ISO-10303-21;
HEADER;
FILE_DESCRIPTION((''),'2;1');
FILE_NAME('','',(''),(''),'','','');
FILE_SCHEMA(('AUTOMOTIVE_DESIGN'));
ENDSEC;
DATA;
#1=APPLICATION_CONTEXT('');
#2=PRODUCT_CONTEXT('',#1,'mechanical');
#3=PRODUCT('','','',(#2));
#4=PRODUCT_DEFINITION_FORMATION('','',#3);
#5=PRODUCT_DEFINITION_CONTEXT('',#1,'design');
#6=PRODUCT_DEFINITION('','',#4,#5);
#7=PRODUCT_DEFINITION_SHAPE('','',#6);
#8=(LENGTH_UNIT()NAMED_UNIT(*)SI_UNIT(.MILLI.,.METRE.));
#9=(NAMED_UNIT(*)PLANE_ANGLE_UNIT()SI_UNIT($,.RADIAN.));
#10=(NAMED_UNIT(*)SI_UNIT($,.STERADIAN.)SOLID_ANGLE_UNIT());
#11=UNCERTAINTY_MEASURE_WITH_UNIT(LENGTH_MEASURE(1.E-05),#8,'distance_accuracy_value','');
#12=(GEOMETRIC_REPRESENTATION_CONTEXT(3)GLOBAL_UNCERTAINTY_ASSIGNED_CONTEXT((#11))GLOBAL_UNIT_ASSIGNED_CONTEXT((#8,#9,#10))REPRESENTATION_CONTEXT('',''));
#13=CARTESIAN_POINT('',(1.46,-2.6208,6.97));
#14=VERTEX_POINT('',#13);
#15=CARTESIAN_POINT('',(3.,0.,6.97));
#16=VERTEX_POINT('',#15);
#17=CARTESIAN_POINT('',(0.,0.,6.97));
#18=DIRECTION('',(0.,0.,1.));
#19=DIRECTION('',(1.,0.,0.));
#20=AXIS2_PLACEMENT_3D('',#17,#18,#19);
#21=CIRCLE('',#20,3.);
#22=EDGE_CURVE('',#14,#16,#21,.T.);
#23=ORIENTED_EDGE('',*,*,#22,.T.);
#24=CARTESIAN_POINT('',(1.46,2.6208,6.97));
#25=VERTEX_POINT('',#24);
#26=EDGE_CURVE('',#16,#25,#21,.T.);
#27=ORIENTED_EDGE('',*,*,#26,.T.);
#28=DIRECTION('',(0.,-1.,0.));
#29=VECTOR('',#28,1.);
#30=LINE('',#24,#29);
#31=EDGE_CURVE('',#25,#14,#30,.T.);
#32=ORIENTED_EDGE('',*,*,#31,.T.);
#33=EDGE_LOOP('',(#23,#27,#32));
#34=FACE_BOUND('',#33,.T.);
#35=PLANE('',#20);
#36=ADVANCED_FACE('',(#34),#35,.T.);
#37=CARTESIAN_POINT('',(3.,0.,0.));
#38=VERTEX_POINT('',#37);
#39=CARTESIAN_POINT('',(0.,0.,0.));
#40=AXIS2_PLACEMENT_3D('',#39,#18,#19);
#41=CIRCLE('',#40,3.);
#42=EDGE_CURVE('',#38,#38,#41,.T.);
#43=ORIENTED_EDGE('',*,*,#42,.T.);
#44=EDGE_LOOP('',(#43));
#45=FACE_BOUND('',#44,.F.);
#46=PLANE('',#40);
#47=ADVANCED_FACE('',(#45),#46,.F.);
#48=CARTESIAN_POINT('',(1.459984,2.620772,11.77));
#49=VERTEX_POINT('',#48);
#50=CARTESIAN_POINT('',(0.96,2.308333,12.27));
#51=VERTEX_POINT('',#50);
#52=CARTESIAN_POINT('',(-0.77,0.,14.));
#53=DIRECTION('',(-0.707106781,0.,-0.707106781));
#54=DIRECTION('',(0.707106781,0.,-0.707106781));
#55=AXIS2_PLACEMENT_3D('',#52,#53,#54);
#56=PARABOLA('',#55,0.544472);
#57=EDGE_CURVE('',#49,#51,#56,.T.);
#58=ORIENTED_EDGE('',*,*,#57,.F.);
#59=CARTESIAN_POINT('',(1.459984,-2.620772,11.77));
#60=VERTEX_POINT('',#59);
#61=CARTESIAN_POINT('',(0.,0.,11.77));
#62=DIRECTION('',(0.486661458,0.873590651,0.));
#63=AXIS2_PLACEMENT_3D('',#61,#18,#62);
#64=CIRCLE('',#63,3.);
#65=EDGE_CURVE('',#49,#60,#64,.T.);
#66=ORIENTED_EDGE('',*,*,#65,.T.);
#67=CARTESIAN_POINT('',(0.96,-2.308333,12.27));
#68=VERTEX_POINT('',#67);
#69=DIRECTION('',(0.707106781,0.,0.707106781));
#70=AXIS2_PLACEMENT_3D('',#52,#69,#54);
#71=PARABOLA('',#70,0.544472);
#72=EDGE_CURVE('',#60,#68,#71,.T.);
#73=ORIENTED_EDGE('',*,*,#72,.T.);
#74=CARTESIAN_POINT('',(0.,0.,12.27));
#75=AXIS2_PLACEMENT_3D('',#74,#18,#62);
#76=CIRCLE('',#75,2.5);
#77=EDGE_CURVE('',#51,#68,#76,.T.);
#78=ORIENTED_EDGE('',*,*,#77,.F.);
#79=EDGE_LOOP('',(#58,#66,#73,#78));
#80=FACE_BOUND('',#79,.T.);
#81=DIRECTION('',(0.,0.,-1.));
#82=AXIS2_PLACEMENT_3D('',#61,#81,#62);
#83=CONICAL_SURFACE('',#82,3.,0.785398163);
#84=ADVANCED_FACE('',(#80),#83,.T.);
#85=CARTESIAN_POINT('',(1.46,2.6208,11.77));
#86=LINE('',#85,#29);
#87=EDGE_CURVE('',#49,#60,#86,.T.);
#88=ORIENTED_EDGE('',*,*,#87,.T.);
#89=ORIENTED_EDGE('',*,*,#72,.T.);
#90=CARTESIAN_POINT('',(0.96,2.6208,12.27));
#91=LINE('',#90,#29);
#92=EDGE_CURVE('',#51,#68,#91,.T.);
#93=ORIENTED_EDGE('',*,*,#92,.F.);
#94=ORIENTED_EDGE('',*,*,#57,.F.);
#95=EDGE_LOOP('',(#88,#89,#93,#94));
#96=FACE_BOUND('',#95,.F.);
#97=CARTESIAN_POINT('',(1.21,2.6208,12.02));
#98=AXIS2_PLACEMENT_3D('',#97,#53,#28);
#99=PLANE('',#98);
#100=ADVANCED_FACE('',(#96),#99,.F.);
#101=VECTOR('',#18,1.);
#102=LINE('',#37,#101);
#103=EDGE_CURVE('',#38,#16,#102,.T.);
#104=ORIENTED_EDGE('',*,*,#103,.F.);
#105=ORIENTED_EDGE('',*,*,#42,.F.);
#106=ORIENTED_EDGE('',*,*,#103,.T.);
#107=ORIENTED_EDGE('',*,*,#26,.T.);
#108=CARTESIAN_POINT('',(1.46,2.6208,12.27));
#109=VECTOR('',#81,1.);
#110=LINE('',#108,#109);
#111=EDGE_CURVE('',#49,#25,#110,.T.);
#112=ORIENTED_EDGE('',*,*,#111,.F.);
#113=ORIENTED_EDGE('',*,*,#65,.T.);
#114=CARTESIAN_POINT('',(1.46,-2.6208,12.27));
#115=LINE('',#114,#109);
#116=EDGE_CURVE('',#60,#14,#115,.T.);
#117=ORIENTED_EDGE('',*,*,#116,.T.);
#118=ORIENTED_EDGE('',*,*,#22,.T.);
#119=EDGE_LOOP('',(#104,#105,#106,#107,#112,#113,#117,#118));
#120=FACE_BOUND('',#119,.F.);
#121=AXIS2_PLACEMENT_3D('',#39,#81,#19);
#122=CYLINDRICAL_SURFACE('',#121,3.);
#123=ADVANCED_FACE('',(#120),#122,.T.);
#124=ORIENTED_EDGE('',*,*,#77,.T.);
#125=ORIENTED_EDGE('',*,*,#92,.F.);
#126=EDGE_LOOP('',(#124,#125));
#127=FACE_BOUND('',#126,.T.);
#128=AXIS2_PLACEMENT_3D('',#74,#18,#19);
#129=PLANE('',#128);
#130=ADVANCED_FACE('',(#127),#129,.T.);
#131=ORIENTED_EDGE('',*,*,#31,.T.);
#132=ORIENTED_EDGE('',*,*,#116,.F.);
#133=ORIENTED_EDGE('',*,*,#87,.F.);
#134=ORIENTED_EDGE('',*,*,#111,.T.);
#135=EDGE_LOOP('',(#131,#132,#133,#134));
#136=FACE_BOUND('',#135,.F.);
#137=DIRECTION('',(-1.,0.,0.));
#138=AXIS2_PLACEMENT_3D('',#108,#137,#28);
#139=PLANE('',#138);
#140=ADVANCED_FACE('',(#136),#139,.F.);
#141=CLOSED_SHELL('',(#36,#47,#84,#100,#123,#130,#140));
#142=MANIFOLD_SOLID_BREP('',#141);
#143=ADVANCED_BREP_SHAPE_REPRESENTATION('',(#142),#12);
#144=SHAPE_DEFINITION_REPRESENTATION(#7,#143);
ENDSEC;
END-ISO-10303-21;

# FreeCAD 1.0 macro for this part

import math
import FreeCAD as App
import Part
import Sketcher
from FreeCAD import Vector
Q = App.Units.Quantity


def edges_at(feature, points):
    """Names of the edges that pass closest to the given points."""
    edges = feature.Shape.Edges
    near = lambda p: min(range(len(edges)), key=lambda i: edges[i].distToShape(Part.Vertex(*p))[0])
    return sorted({f"Edge{near(p) + 1}" for p in points})

doc = App.newDocument("Part")
body = doc.addObject("PartDesign::Body", "Body")

sketch1 = body.newObject("Sketcher::SketchObject", "Sketch")
sketch1.AttachmentSupport = (doc.getObject("XY_Plane"), [""])
sketch1.MapMode = "FlatFace"
sketch1.addGeometry(Part.Circle(Vector(0, 0, 0), Vector(0, 0, 1), 3), False)
sketch1.addConstraint([
    Sketcher.Constraint("Coincident", 0, 3, -1, 1),
    Sketcher.Constraint("Diameter", 0, Q("6 mm")),
])
pad1 = body.newObject("PartDesign::Pad", "Pad")
pad1.Profile = sketch1
pad1.Length = 12.27

sketch2 = body.newObject("Sketcher::SketchObject", "Sketch001")
sketch2.AttachmentSupport = (doc.getObject("XY_Plane"), [""])
sketch2.MapMode = "FlatFace"
sketch2.AttachmentOffset = App.Placement(Vector(0, 0, 12.27), App.Rotation())
sketch2.addGeometry([
    Part.ArcOfCircle(Part.Circle(Vector(0, 0, 0), Vector(0, 0, 1), 3), math.radians(-61), math.radians(61)),
    Part.LineSegment(Vector(1.5, -2.6, 0), Vector(1.5, 2.6, 0)),
], False)
sketch2.addConstraint([
    Sketcher.Constraint("Coincident", 0, 1, 1, 1),
    Sketcher.Constraint("Coincident", 1, 2, 0, 2),
    Sketcher.Constraint("Vertical", 1),
    Sketcher.Constraint("Coincident", 0, 3, -1, 1),
    Sketcher.Constraint("Radius", 0, Q("3 mm")),
    Sketcher.Constraint("DistanceX", -1, 1, 0, 1, Q("1.46 mm")),
])
pocket1 = body.newObject("PartDesign::Pocket", "Pocket")
pocket1.Profile = sketch2
pocket1.Length = 5.3
doc.recompute()

chamfer = body.newObject("PartDesign::Chamfer", "Chamfer")
chamfer.Base = (pocket1, edges_at(pocket1, [(-3, 0, 12.27), (1.46, 0, 12.27)]))
chamfer.Size = 0.5

doc.recompute()
